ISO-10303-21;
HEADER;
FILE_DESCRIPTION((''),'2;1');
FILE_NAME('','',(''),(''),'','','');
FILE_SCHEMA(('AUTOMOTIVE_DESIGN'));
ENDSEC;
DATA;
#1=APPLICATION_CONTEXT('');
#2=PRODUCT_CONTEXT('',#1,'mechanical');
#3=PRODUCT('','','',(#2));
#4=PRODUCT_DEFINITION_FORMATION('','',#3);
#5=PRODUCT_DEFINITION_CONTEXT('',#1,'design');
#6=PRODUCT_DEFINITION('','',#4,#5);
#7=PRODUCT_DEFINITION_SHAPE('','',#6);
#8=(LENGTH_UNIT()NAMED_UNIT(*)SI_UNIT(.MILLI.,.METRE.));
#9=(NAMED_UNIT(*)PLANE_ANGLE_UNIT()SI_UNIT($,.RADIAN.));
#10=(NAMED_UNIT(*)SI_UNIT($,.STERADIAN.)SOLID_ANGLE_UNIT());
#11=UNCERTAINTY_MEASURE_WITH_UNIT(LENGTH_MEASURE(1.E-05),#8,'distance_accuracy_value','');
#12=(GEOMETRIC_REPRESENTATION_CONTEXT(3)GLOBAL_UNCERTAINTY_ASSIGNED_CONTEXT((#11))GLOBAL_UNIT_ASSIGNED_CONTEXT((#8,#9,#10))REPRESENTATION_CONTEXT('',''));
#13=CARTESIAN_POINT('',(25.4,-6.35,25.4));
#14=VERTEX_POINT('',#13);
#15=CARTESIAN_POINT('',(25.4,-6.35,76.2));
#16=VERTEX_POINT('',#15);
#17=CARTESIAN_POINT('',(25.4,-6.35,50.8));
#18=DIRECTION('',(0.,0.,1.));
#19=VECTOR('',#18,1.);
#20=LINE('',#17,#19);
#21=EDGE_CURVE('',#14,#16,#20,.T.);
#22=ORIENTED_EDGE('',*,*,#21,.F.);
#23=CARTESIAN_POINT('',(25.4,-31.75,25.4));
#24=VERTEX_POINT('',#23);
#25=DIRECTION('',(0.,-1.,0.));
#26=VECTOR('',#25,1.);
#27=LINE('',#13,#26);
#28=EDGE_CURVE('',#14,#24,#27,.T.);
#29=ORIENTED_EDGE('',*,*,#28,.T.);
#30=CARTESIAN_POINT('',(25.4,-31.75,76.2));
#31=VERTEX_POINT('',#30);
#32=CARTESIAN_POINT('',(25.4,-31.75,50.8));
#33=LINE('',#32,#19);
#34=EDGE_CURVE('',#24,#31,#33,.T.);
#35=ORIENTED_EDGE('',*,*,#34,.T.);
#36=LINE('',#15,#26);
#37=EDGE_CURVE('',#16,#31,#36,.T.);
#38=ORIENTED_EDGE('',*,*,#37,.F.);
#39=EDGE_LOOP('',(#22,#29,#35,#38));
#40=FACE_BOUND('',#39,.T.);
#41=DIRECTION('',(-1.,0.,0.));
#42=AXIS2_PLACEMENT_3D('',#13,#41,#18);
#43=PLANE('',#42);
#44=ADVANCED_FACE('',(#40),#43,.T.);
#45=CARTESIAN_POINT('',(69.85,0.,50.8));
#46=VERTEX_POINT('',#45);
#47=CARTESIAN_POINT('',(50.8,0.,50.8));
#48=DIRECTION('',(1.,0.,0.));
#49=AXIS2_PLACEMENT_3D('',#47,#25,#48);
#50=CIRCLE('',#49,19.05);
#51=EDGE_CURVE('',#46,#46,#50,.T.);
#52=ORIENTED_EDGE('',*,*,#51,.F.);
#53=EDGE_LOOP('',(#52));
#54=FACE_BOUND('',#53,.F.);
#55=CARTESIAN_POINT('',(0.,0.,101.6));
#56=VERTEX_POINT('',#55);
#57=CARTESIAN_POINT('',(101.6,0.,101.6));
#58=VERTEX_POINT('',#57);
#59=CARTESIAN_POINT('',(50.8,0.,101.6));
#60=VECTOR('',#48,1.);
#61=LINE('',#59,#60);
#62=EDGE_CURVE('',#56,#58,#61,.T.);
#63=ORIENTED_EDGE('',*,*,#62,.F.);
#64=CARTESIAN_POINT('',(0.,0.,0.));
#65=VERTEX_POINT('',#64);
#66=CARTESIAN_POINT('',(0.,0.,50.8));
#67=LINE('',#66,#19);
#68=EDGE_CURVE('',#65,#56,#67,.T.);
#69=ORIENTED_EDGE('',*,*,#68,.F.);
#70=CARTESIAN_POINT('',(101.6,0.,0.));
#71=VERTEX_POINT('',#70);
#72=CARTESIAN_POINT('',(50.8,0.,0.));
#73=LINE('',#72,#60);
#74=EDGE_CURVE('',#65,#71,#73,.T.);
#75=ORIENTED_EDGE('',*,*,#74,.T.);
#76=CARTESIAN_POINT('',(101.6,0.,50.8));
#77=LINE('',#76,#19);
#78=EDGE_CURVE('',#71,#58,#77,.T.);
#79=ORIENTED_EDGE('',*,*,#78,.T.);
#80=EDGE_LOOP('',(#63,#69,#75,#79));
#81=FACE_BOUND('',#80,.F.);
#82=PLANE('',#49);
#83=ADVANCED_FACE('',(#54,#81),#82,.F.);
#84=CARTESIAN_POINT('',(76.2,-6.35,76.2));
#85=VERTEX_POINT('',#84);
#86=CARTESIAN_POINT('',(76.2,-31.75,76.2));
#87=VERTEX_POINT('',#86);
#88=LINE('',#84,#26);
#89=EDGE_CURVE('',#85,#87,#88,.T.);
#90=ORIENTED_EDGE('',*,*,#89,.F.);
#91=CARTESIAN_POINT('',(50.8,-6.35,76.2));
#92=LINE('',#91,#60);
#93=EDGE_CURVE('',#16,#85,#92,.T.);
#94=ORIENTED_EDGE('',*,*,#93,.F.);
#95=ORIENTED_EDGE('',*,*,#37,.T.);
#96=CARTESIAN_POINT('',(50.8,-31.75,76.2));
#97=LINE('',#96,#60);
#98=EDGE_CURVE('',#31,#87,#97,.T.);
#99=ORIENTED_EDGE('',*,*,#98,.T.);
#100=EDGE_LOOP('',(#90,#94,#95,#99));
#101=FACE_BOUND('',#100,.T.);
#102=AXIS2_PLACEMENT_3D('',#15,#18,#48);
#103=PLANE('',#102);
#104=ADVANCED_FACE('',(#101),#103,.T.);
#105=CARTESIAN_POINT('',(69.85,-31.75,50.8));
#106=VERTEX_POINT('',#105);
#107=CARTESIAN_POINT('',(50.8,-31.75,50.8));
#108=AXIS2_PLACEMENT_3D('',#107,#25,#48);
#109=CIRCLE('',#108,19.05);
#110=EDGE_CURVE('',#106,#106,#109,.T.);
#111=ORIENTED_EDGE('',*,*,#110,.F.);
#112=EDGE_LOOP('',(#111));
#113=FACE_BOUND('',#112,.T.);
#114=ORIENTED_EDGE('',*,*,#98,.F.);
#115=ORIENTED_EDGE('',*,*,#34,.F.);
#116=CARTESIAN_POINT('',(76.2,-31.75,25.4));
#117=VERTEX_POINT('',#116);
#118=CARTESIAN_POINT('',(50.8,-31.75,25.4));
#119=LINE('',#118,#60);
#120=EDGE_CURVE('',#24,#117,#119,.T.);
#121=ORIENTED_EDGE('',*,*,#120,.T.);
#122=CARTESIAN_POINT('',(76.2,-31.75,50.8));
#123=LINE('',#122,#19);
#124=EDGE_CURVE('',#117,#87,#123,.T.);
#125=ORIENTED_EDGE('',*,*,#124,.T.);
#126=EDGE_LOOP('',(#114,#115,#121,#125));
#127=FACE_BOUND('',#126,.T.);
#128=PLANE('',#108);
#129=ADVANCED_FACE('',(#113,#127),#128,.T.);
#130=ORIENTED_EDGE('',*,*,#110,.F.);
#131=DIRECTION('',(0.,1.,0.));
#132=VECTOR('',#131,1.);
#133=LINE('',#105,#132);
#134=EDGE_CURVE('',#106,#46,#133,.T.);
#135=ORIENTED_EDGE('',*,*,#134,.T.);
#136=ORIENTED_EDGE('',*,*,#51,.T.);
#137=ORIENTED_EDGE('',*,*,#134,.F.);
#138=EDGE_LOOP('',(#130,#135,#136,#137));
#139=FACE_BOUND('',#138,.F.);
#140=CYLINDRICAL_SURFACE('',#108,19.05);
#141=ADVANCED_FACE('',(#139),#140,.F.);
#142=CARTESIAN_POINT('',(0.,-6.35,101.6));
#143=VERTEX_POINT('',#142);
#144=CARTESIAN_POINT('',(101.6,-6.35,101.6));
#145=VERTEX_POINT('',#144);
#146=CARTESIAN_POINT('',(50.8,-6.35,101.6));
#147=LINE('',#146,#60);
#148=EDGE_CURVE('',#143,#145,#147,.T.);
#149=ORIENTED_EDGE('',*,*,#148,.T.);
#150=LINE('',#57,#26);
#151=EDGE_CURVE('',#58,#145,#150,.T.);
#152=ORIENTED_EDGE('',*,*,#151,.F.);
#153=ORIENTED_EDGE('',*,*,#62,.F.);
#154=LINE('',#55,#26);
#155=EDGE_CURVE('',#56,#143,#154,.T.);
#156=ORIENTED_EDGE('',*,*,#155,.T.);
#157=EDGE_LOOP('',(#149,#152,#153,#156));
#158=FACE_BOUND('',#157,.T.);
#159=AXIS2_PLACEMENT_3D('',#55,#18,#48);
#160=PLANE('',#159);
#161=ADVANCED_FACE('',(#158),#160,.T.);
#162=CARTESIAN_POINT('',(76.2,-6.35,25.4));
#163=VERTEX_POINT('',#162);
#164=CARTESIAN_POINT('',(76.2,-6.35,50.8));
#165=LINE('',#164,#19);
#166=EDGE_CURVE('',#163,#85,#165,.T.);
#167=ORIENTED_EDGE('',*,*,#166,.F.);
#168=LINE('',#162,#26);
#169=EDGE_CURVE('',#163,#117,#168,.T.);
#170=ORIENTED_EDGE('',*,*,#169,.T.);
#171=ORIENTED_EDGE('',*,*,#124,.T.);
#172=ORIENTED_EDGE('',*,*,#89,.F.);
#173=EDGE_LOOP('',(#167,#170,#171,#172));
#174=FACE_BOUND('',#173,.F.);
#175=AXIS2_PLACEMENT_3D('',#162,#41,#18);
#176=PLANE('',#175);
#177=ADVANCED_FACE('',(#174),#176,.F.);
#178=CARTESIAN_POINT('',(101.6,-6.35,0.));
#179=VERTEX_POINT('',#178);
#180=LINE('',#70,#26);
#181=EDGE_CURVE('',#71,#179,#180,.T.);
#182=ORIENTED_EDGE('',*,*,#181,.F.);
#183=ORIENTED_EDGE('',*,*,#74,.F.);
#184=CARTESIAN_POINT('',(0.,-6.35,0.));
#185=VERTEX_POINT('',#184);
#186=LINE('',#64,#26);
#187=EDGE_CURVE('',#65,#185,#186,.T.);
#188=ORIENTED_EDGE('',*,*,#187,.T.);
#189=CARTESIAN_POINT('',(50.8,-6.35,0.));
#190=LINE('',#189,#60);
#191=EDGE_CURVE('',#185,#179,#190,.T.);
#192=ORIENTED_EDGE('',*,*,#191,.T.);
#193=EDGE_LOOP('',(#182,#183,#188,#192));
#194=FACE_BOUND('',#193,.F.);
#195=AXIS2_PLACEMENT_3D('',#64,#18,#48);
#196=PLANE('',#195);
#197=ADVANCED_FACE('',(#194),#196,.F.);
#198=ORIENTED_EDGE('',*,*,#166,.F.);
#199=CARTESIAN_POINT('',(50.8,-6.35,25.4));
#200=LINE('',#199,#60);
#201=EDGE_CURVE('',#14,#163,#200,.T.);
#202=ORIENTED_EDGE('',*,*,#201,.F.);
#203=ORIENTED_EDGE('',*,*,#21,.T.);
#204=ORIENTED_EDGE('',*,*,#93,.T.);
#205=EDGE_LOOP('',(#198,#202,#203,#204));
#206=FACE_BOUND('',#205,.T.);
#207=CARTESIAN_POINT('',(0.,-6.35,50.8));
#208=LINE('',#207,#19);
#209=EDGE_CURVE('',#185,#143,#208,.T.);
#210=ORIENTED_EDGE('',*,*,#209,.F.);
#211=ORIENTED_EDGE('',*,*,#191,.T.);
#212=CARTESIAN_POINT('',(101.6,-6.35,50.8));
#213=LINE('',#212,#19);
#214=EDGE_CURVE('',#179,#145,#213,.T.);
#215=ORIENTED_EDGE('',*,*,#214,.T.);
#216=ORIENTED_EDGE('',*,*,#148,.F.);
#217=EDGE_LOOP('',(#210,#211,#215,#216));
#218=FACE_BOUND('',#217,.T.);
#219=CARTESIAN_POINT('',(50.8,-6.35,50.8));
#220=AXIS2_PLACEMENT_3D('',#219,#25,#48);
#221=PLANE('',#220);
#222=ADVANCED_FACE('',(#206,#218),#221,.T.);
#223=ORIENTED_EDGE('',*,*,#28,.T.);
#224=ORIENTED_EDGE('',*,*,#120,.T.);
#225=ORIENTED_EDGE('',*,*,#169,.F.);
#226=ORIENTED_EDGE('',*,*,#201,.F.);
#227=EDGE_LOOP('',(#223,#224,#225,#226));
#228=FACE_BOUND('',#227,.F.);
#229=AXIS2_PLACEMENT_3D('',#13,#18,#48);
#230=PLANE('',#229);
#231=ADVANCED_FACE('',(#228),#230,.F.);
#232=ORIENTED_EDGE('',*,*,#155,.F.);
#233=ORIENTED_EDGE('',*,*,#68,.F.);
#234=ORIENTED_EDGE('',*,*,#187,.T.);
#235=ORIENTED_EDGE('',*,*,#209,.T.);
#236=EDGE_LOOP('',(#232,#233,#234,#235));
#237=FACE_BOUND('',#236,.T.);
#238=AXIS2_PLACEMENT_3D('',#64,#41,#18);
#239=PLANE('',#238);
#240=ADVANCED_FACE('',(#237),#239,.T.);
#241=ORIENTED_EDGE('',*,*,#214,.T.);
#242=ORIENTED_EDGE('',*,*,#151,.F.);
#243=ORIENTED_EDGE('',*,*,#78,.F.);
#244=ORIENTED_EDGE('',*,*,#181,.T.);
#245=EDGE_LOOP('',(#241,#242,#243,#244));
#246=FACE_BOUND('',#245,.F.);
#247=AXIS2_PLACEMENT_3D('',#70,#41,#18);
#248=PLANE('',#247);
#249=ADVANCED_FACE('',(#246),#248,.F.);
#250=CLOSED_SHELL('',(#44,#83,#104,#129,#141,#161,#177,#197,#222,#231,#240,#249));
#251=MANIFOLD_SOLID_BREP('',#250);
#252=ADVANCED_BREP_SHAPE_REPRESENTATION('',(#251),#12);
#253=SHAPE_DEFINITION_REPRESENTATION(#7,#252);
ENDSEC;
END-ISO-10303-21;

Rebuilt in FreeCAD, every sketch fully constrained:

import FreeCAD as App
import Part
import Sketcher
from FreeCAD import Vector
Q = App.Units.Quantity

doc = App.newDocument("Part")
body = doc.addObject("PartDesign::Body", "Body")

# Sketch on XZ plane
sketch1 = doc.addObject("Sketcher::SketchObject", "Sketch")
body.addObject(sketch1)
sketch1.AttachmentSupport = (doc.XZ_Plane, [""])
sketch1.MapMode = "FlatFace"
sketch1.addGeometry([
    Part.LineSegment(Vector(0, 101.6, 0), Vector(0, 0, 0)),
    Part.LineSegment(Vector(0, 0, 0), Vector(101.6, 0, 0)),
    Part.LineSegment(Vector(101.6, 0, 0), Vector(101.6, 101.6, 0)),
    Part.LineSegment(Vector(101.6, 101.6, 0), Vector(0, 101.6, 0)),
], False)
sketch1.addConstraint([
    Sketcher.Constraint("Coincident", 0, 2, 1, 1),
    Sketcher.Constraint("Coincident", 1, 2, 2, 1),
    Sketcher.Constraint("Coincident", 2, 2, 3, 1),
    Sketcher.Constraint("Coincident", 3, 2, 0, 1),
    Sketcher.Constraint("Vertical", 0),
    Sketcher.Constraint("Horizontal", 1),
    Sketcher.Constraint("Vertical", 2),
    Sketcher.Constraint("Horizontal", 3),
    Sketcher.Constraint("Coincident", 0, 2, -1, 1),
    Sketcher.Constraint("Equal", 3, 0),
    Sketcher.Constraint("DistanceX", 1, 1, 1, 2, Q("4 in")),
])
pad1 = doc.addObject("PartDesign::Pad", "Pad")
body.addObject(pad1)
pad1.Profile = sketch1
pad1.Length = Q("0.25 in")

# Sketch on XZ plane
sketch2 = doc.addObject("Sketcher::SketchObject", "Sketch001")
body.addObject(sketch2)
sketch2.AttachmentSupport = (doc.XZ_Plane, [""])
sketch2.MapMode = "FlatFace"
sketch2.AttachmentOffset = App.Placement(Vector(0, 0, 0.25 * 25.4), App.Rotation())
sketch2.addGeometry([
    Part.LineSegment(Vector(25.4, 76.2, 0), Vector(25.4, 25.4, 0)),
    Part.LineSegment(Vector(25.4, 25.4, 0), Vector(76.2, 25.4, 0)),
    Part.LineSegment(Vector(76.2, 25.4, 0), Vector(76.2, 76.2, 0)),
    Part.LineSegment(Vector(76.2, 76.2, 0), Vector(25.4, 76.2, 0)),
], False)
sketch2.addConstraint([
    Sketcher.Constraint("Coincident", 0, 2, 1, 1),
    Sketcher.Constraint("Coincident", 1, 2, 2, 1),
    Sketcher.Constraint("Coincident", 2, 2, 3, 1),
    Sketcher.Constraint("Coincident", 3, 2, 0, 1),
    Sketcher.Constraint("Vertical", 0),
    Sketcher.Constraint("Horizontal", 1),
    Sketcher.Constraint("Vertical", 2),
    Sketcher.Constraint("Horizontal", 3),
    Sketcher.Constraint("Equal", 3, 0),
    Sketcher.Constraint("DistanceX", 1, 1, 1, 2, Q("2 in")),
    Sketcher.Constraint("DistanceX", -1, 1, 0, 2, Q("1 in")),
    Sketcher.Constraint("DistanceY", -1, 1, 0, 2, Q("1 in")),
])
pad2 = doc.addObject("PartDesign::Pad", "Pad001")
body.addObject(pad2)
pad2.Profile = sketch2
pad2.Length = Q("1 in")

# Sketch on XZ plane
sketch3 = doc.addObject("Sketcher::SketchObject", "Sketch002")
body.addObject(sketch3)
sketch3.AttachmentSupport = (doc.XZ_Plane, [""])
sketch3.MapMode = "FlatFace"
sketch3.AttachmentOffset = App.Placement(Vector(0, 0, 1.25 * 25.4), App.Rotation())
sketch3.addGeometry(Part.Circle(Vector(50.8, 50.8, 0), Vector(0, 0, 1), 19.05), False)
sketch3.addConstraint([
    Sketcher.Constraint("Diameter", 0, Q("1.5 in")),
    Sketcher.Constraint("DistanceX", -1, 1, 0, 3, Q("2 in")),
    Sketcher.Constraint("DistanceY", -1, 1, 0, 3, Q("2 in")),
])
pocket1 = doc.addObject("PartDesign::Pocket", "Pocket")
body.addObject(pocket1)
pocket1.Profile = sketch3
pocket1.Type = "ThroughAll"

doc.recompute()
